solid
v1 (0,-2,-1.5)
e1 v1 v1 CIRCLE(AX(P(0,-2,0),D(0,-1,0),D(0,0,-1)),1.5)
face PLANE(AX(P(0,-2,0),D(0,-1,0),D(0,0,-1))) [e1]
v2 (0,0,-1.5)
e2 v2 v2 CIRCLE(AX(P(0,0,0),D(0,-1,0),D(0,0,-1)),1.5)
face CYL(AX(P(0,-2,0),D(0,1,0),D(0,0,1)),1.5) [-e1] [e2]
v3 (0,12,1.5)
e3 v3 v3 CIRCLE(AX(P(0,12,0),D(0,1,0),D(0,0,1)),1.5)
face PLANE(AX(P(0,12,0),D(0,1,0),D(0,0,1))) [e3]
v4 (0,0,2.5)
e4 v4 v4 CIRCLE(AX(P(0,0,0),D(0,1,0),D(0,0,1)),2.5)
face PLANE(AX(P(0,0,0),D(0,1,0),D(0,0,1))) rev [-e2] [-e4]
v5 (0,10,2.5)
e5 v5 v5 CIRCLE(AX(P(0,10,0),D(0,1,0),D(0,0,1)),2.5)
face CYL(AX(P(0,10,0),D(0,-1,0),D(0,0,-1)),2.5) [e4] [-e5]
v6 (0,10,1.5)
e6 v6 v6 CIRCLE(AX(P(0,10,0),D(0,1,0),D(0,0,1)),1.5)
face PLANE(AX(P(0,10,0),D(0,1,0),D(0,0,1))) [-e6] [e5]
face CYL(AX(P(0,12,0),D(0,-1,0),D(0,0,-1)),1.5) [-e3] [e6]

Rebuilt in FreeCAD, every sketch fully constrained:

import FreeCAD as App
import Part
import Sketcher

V = App.Vector
Q = App.Units.Quantity

doc = App.newDocument("Part")
params = doc.addObject("Spreadsheet::Sheet", "Params")
for row, (alias, value) in enumerate([
    ("sketch1_diameter", "5 mm"),
    ("pad1_length", "10 mm"),
    ("sketch2_diameter", "3 mm"),
    ("pad2_length", "2 mm"),
    ("sketch3_diameter", "3 mm"),
    ("pad3_length", "2 mm"),
], start=1):
    params.set(f"A{row}", alias)
    params.set(f"B{row}", "=" + value)
    params.setAlias(f"B{row}", alias)

body = doc.addObject("PartDesign::Body", "Body")

# Sketch on XZ plane
sketch1 = doc.addObject("Sketcher::SketchObject", "Sketch")
body.addObject(sketch1)
sketch1.AttachmentSupport = (doc.XZ_Plane, [""])
sketch1.MapMode = "FlatFace"
sketch1.addGeometry(Part.Circle(V(0, 0, 0), V(0, 0, 1), 2.5), False)
sketch1.addConstraint([
    Sketcher.Constraint("Coincident", 0, 3, -1, 1),
    Sketcher.Constraint("Diameter", 0, Q("5 mm")),
])
sketch1.setExpression("Constraints[1]", "Params.sketch1_diameter")
pad1 = doc.addObject("PartDesign::Pad", "Pad")
body.addObject(pad1)
pad1.Profile = sketch1
pad1.setExpression("Length", "Params.pad1_length")
pad1.Reversed = True

# Sketch on XZ plane
sketch2 = doc.addObject("Sketcher::SketchObject", "Sketch001")
body.addObject(sketch2)
sketch2.AttachmentSupport = (doc.XZ_Plane, [""])
sketch2.MapMode = "FlatFace"
sketch2.AttachmentOffset = App.Placement(V(0, 0, -10), App.Rotation())
sketch2.addGeometry(Part.Circle(V(0, 0, 0), V(0, 0, 1), 1.5), False)
sketch2.addConstraint([
    Sketcher.Constraint("Coincident", 0, 3, -1, 1),
    Sketcher.Constraint("Diameter", 0, Q("3 mm")),
])
sketch2.setExpression("Constraints[1]", "Params.sketch2_diameter")
pad2 = doc.addObject("PartDesign::Pad", "Pad001")
body.addObject(pad2)
pad2.Profile = sketch2
pad2.setExpression("Length", "Params.pad2_length")
pad2.Reversed = True

# Sketch on XZ plane
sketch3 = doc.addObject("Sketcher::SketchObject", "Sketch002")
body.addObject(sketch3)
sketch3.AttachmentSupport = (doc.XZ_Plane, [""])
sketch3.MapMode = "FlatFace"
sketch3.AttachmentOffset = App.Placement(V(0, 0, 2), App.Rotation())
sketch3.addGeometry(Part.Circle(V(0, 0, 0), V(0, 0, 1), 1.5), False)
sketch3.addConstraint([
    Sketcher.Constraint("Coincident", 0, 3, -1, 1),
    Sketcher.Constraint("Diameter", 0, Q("3 mm")),
])
sketch3.setExpression("Constraints[1]", "Params.sketch3_diameter")
pad3 = doc.addObject("PartDesign::Pad", "Pad002")
body.addObject(pad3)
pad3.Profile = sketch3
pad3.setExpression("Length", "Params.pad3_length")
pad3.Reversed = True

doc.recompute()
